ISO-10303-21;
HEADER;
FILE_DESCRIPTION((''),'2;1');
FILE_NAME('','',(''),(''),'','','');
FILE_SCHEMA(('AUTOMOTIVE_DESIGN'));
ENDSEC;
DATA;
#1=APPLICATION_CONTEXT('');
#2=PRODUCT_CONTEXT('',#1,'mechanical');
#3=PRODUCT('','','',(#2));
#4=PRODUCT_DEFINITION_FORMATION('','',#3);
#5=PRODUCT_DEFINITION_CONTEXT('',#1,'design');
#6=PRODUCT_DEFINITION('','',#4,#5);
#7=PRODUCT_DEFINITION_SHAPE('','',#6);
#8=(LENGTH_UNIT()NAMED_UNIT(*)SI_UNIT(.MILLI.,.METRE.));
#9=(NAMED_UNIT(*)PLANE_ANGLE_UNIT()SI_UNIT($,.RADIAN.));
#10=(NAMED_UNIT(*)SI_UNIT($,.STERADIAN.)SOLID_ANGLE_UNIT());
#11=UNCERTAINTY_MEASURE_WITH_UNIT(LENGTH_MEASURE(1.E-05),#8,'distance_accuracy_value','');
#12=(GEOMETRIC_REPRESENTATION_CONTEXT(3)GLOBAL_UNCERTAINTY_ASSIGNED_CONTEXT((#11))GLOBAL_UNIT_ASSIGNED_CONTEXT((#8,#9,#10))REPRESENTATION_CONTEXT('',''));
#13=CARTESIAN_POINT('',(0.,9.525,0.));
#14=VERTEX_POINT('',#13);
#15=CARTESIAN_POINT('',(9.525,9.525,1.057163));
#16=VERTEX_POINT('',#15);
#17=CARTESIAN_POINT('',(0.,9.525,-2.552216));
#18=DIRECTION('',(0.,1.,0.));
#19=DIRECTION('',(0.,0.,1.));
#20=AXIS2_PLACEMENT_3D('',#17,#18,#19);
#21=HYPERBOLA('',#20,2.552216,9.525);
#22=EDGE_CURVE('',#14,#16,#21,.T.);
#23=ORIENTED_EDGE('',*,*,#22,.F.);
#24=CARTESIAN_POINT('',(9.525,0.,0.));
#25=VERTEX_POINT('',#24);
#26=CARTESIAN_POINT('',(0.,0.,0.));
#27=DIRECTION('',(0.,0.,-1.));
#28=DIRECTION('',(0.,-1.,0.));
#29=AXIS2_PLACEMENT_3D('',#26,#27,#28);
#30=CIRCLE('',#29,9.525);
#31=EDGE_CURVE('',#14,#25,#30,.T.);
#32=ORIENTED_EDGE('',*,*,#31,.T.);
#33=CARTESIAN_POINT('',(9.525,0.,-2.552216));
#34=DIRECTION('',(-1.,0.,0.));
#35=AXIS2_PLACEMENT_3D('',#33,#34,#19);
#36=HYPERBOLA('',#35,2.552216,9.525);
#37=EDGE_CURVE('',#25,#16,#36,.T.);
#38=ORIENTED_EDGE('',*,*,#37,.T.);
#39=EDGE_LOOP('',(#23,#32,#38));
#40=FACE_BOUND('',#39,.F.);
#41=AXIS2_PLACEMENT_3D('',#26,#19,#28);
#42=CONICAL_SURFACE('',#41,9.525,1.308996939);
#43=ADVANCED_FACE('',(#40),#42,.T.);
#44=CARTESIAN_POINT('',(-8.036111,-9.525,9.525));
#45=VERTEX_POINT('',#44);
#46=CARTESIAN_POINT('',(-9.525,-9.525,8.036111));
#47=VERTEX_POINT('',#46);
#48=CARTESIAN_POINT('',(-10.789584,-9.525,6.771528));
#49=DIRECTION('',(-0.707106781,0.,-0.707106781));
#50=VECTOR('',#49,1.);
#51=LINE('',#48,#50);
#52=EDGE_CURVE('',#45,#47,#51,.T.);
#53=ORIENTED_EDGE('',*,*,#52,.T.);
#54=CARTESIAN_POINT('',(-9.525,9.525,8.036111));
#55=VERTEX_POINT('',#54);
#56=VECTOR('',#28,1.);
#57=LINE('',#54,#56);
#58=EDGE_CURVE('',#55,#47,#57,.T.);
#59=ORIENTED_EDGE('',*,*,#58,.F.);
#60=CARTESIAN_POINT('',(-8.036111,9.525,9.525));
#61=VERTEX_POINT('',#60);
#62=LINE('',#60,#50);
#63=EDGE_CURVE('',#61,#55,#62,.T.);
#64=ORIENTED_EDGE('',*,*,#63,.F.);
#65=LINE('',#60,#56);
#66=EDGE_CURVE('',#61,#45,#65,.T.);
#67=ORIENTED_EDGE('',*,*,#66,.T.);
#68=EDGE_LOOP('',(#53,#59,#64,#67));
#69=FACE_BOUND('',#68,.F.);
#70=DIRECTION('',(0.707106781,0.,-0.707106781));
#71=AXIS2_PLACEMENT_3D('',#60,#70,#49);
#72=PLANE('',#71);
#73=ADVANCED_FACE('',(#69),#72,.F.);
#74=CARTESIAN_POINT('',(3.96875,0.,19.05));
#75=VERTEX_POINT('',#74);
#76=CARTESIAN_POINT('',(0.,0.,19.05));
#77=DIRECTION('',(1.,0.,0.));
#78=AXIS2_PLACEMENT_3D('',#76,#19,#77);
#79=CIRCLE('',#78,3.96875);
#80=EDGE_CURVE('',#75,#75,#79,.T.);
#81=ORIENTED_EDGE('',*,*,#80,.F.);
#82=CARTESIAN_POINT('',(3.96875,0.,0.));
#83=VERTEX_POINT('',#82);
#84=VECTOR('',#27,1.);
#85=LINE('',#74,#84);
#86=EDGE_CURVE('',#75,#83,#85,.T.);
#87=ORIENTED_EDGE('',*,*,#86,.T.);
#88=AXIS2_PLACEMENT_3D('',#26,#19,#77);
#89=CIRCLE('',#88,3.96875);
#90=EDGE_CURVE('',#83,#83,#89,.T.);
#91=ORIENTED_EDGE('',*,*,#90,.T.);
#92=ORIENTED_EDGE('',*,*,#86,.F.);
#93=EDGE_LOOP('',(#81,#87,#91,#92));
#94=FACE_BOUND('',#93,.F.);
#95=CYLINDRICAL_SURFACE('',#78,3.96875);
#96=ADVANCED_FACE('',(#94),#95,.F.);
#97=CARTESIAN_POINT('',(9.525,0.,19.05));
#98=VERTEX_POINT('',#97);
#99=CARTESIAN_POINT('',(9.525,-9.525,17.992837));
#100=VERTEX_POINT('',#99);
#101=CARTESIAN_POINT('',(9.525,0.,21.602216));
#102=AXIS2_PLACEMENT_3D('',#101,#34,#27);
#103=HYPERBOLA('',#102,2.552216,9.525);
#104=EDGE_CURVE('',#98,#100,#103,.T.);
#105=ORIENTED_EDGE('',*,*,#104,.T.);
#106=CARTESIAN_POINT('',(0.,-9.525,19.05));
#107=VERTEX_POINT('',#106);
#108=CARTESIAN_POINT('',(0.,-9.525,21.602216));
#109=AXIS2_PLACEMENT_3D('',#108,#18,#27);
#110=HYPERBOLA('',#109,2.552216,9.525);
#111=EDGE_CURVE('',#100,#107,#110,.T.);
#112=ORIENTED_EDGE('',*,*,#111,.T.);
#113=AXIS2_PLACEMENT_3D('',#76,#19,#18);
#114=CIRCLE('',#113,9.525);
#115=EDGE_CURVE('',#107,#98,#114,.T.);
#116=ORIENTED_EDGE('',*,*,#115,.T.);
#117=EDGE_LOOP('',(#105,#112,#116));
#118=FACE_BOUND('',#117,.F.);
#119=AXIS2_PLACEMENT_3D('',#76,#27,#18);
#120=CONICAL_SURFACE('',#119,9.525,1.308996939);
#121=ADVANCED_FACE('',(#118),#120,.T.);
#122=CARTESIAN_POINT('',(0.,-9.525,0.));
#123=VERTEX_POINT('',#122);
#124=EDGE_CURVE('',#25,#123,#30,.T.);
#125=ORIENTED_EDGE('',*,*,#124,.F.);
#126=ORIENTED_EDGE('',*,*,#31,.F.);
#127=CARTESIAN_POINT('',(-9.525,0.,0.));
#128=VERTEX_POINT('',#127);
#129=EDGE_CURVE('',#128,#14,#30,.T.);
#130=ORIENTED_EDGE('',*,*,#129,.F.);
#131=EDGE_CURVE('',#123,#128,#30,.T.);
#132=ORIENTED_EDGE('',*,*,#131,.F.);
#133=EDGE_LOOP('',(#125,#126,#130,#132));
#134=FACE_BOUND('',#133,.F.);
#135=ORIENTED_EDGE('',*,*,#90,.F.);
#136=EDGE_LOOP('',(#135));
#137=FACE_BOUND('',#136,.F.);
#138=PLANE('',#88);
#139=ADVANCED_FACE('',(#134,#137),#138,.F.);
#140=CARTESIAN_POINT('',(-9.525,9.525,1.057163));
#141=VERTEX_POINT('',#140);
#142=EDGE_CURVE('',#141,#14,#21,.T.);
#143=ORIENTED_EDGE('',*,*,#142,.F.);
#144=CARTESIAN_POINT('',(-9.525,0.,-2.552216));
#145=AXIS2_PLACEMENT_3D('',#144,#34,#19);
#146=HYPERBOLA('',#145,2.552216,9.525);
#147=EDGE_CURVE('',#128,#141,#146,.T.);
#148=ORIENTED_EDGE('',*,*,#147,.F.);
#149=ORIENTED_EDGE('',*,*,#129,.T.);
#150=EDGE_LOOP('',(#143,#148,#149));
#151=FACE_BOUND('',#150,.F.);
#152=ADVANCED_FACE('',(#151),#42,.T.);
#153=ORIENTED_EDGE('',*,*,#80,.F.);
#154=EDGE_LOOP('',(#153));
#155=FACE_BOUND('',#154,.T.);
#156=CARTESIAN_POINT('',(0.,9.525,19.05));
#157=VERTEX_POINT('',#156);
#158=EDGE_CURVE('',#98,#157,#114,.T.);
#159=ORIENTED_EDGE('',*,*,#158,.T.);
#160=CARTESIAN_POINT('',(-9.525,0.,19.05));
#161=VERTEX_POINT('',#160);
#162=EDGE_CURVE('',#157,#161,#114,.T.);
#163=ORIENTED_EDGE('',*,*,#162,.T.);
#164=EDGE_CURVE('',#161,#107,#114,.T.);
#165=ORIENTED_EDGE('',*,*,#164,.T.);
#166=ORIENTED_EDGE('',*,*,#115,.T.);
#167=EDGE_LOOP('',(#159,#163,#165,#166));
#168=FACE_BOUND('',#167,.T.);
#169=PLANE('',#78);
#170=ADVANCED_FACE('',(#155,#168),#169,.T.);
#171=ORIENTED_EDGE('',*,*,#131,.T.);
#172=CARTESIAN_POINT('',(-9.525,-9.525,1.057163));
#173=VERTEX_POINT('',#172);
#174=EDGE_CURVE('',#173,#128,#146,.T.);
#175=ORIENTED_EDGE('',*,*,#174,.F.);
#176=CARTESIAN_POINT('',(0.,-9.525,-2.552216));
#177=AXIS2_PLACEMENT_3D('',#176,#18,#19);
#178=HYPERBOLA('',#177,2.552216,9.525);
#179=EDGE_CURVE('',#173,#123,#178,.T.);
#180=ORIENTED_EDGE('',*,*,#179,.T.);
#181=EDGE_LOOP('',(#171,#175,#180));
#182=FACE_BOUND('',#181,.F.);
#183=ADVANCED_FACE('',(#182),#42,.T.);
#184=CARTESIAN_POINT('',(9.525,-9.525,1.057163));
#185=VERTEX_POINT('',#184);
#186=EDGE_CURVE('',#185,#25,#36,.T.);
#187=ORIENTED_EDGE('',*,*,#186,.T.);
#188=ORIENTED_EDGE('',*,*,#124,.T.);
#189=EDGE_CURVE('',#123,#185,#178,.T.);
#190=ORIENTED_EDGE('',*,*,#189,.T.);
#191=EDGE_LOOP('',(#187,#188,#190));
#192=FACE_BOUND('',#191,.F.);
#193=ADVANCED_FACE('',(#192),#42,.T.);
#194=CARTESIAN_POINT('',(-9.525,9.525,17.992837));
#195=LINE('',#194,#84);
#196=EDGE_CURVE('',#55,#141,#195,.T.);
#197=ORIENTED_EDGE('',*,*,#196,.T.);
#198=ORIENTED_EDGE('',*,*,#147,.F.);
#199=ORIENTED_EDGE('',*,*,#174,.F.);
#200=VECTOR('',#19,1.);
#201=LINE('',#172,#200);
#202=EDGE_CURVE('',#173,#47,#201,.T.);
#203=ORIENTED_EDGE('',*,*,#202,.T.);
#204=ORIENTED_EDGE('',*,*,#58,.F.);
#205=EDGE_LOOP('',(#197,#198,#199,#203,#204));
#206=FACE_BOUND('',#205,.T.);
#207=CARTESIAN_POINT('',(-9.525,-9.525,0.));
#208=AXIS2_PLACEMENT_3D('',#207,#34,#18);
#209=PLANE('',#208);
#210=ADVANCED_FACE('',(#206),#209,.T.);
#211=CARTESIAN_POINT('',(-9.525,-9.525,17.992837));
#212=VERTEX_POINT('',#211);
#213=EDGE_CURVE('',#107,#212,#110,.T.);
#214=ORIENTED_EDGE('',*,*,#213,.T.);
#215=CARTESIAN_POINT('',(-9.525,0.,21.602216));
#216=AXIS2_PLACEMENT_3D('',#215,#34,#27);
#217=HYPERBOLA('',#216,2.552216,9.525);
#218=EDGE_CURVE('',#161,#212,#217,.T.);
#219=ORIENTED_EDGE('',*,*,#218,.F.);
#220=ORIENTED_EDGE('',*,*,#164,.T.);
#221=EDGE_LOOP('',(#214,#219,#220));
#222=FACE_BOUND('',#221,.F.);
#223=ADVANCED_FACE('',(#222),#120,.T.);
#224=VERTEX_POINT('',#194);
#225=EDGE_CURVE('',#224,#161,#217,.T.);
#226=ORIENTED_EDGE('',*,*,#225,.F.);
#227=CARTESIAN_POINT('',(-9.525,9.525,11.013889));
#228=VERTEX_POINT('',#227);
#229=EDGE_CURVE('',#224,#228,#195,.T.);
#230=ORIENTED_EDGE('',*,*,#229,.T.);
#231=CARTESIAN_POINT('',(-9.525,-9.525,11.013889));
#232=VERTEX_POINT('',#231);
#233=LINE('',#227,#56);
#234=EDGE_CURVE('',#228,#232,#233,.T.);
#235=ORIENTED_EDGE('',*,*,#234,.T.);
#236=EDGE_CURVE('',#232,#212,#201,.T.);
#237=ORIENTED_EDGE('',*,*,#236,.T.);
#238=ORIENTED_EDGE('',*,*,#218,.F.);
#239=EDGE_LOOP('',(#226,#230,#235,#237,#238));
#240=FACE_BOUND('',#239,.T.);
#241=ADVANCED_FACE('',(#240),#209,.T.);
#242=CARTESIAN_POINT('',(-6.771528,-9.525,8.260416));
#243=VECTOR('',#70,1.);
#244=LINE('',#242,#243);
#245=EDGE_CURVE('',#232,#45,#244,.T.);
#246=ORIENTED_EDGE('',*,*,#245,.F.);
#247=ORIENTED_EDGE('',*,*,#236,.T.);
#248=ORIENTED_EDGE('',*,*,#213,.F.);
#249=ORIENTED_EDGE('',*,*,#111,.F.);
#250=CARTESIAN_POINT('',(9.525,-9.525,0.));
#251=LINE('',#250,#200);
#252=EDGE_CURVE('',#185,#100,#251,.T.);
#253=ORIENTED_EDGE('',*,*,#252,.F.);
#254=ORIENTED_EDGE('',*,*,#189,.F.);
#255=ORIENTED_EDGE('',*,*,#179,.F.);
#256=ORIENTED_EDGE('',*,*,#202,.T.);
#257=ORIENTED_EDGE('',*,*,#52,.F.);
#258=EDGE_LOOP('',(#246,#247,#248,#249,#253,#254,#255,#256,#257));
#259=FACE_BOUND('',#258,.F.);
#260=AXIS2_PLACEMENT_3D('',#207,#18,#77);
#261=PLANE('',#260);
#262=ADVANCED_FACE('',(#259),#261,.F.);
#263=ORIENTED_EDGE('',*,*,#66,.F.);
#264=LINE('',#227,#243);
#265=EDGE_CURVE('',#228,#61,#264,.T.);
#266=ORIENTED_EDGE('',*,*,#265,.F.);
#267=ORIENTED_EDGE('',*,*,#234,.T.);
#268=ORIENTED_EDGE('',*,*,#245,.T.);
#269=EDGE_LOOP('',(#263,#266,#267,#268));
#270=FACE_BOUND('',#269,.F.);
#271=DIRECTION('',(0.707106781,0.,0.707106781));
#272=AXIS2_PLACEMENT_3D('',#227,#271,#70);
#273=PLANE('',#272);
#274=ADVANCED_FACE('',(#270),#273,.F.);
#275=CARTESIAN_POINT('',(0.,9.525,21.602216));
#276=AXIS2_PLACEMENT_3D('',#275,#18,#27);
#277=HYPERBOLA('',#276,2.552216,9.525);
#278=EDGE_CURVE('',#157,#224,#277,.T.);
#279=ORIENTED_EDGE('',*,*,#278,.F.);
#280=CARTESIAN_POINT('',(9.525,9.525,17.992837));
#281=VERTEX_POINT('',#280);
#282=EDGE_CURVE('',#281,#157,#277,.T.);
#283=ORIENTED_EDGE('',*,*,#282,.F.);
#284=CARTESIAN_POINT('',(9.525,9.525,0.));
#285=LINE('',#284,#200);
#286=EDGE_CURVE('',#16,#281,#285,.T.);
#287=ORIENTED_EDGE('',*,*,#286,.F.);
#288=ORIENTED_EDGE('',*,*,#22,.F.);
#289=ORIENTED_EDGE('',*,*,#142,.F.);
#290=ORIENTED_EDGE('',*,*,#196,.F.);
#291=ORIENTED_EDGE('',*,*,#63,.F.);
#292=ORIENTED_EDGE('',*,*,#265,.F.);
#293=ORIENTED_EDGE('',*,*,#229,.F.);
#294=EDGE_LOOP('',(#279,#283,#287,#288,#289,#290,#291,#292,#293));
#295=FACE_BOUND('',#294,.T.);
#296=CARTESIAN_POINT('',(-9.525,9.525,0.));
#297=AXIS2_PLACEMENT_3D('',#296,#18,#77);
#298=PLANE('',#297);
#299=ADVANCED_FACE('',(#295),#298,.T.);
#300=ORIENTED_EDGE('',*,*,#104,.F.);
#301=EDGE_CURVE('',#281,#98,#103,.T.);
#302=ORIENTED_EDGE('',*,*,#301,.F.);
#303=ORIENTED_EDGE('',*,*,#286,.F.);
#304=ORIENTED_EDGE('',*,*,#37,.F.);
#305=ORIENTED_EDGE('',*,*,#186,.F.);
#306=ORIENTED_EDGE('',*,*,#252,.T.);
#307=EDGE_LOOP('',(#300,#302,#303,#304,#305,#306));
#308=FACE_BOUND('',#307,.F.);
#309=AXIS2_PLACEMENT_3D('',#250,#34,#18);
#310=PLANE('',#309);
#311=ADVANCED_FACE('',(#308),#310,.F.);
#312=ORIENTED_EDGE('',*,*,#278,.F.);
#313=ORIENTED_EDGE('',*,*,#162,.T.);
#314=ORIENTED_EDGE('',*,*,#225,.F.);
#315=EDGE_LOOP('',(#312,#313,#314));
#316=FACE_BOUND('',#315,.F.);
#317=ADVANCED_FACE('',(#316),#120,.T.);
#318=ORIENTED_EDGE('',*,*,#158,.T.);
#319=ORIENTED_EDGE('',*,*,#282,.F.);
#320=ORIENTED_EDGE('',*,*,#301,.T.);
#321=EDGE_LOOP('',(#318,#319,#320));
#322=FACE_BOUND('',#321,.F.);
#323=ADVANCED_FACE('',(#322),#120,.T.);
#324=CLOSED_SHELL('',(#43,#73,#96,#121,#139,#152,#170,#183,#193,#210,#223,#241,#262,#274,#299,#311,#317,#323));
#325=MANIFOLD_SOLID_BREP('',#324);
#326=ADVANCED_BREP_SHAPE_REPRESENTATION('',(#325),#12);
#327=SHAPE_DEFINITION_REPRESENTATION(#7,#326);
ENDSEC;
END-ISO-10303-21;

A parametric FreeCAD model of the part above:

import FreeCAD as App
import Part
import Sketcher
Q = App.Units.Quantity


def add_polygon(sketch, points):
    """Adds a closed chain of lines whose ends are joined by coincident constraints."""
    first, n = sketch.GeometryCount, len(points)
    for a, b in zip(points, points[1:] + points[:1]):
        sketch.addGeometry(Part.LineSegment(App.Vector(*a, 0), App.Vector(*b, 0)), False)
    for i in range(n):
        sketch.addConstraint(Sketcher.Constraint("Coincident", first + i, 2, first + (i + 1) % n, 1))

doc = App.newDocument("Part")
body = doc.addObject("PartDesign::Body", "Body")

sketch1 = body.newObject("Sketcher::SketchObject", "Sketch")
sketch1.AttachmentSupport = (doc.getObject("XY_Plane"), [""])
sketch1.MapMode = "FlatFace"
add_polygon(sketch1, [(-10, 10), (-10, -10), (10, -10), (10, 10)])
sketch1.addConstraint([
    Sketcher.Constraint("Vertical", 0),
    Sketcher.Constraint("Horizontal", 1),
    Sketcher.Constraint("Vertical", 2),
    Sketcher.Constraint("Horizontal", 3),
    Sketcher.Constraint("Symmetric", 0, 2, 2, 2, -1, 1),
    Sketcher.Constraint("Equal", 3, 0),
    Sketcher.Constraint("DistanceX", 1, 1, 1, 2, Q("0.75 in")),
])
pad1 = body.newObject("PartDesign::Pad", "Pad")
pad1.Profile = sketch1
pad1.Length = Q("0.75 in")

sketch2 = body.newObject("Sketcher::SketchObject", "Sketch001")
sketch2.AttachmentSupport = (doc.getObject("XY_Plane"), [""])
sketch2.MapMode = "FlatFace"
sketch2.AttachmentOffset = App.Placement(App.Vector(0, 0, 0.75 * 25.4), App.Rotation())
sketch2.addGeometry(Part.Circle(App.Vector(0, 0, 0), App.Vector(0, 0, 1), 4), False)
sketch2.addConstraint([
    Sketcher.Constraint("Coincident", 0, 3, -1, 1),
    Sketcher.Constraint("Diameter", 0, Q("0.3125 in")),
])
pocket1 = body.newObject("PartDesign::Pocket", "Pocket")
pocket1.Profile = sketch2
pocket1.Type = "ThroughAll"

sketch3 = body.newObject("Sketcher::SketchObject", "Sketch002")
sketch3.AttachmentSupport = (doc.getObject("YZ_Plane"), [""])
sketch3.MapMode = "FlatFace"
add_polygon(sketch3, [(24.8, 19.1), (9.5, 19.1), (24.8, 15)])
sketch3.addConstraint([
    Sketcher.Constraint("Horizontal", 0),
    Sketcher.Constraint("Vertical", 2),
    Sketcher.Constraint("DistanceX", 0, 2, 0, 1, Q("0.6 in")),
    Sketcher.Constraint("Angle", 1, Q("-15 deg")),
    Sketcher.Constraint("DistanceY", -1, 1, 0, 2, Q("0.75 in")),
    Sketcher.Constraint("DistanceX", -1, 1, 0, 2, Q("0.375 in")),
])
groove = body.newObject("PartDesign::Groove", "Groove")
groove.Profile = sketch3
groove.ReferenceAxis = (sketch3, ["V_Axis"])
groove.Angle = 360

sketch4 = body.newObject("Sketcher::SketchObject", "Sketch003")
sketch4.AttachmentSupport = (doc.getObject("YZ_Plane"), [""])
sketch4.MapMode = "FlatFace"
add_polygon(sketch4, [(-22.8, 0), (-9.5, 0), (-22.8, 3.6)])
sketch4.addConstraint([
    Sketcher.Constraint("Horizontal", 0),
    Sketcher.Constraint("Vertical", 2),
    Sketcher.Constraint("PointOnObject", 0, 2, -1),
    Sketcher.Constraint("Angle", 1, Q("165 deg")),
    Sketcher.Constraint("DistanceX", 0, 2, -1, 1, Q("0.375 in")),
    Sketcher.Constraint("DistanceX", 0, 1, 0, 2, 13.30555),
])
groove2 = body.newObject("PartDesign::Groove", "Groove001")
groove2.Profile = sketch4
groove2.ReferenceAxis = (sketch4, ["V_Axis"])
groove2.Angle = 360

sketch5 = body.newObject("Sketcher::SketchObject", "Sketch004")
sketch5.AttachmentSupport = (doc.getObject("XZ_Plane"), [""])
sketch5.MapMode = "FlatFace"
add_polygon(sketch5, [(-9.5, 8.8), (-9.5, 9.5), (-10.4, 7.9)])
sketch5.addConstraint([
    Sketcher.Constraint("Vertical", 0),
    Sketcher.Constraint("Angle", 2, Q("45 deg")),
    Sketcher.Constraint("DistanceX", 0, 2, -1, 1, Q("0.375 in")),
    Sketcher.Constraint("DistanceY", -1, 1, 0, 2, Q("0.375 in")),
    Sketcher.Constraint("DistanceY", -1, 1, 1, 2, Q("0.3125 in")),
    Sketcher.Constraint("DistanceY", 0, 1, 0, 2, 0.733709),
])
pocket2 = body.newObject("PartDesign::Pocket", "Pocket001")
pocket2.Profile = sketch5
pocket2.Length = Q("1 in")
pocket2.Midplane = True

sketch6 = body.newObject("Sketcher::SketchObject", "Sketch005")
sketch6.AttachmentSupport = (doc.getObject("XZ_Plane"), [""])
sketch6.MapMode = "FlatFace"
sketch6.AttachmentOffset = App.Placement(App.Vector(0, 0, -0.375 * 25.4), App.Rotation())
add_polygon(sketch6, [(-9.5, 8), (-9.5, 11), (-8, 9.5)])
sketch6.addConstraint([
    Sketcher.Constraint("Vertical", 0),
    Sketcher.Constraint("Perpendicular", 1, 2),
    Sketcher.Constraint("Equal", 1, 2),
    Sketcher.Constraint("DistanceX", 0, 2, -1, 1, Q("0.375 in")),
    Sketcher.Constraint("DistanceY", -1, 1, 1, 2, Q("0.375 in")),
    Sketcher.Constraint("DistanceY", 0, 1, 0, 2, 2.977777),
])
pocket3 = body.newObject("PartDesign::Pocket", "Pocket002")
pocket3.Profile = sketch6
pocket3.Length = Q("1 in")
pocket3.Reversed = True

doc.recompute()
